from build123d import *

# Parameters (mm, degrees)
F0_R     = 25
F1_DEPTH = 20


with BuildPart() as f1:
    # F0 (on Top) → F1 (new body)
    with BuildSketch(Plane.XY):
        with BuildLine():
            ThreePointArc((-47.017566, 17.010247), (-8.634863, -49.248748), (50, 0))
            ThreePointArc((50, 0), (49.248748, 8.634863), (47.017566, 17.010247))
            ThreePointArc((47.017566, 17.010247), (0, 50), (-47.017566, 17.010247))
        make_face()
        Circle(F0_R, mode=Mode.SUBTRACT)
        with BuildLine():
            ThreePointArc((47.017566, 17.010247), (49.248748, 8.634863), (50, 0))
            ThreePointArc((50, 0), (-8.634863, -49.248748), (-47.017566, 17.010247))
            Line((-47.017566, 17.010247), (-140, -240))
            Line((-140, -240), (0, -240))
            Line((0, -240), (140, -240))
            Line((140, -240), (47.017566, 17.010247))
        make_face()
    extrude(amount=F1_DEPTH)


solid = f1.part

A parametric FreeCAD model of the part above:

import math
import FreeCAD as App
import Part
import Sketcher
from FreeCAD import Vector
Q = App.Units.Quantity

doc = App.newDocument("Part")
body = doc.addObject("PartDesign::Body", "Body")

# Sketch on XY plane
sketch1 = doc.addObject("Sketcher::SketchObject", "Sketch")
body.addObject(sketch1)
sketch1.AttachmentSupport = (doc.XY_Plane, [""])
sketch1.MapMode = "FlatFace"
sketch1.addGeometry(Part.ArcOfCircle(Part.Circle(Vector(0, 0, 0), Vector(0, 0, 1), 50), math.radians(20), math.radians(160)), False)
sketch1.addGeometry(Part.LineSegment(Vector(-47, 17, 0), Vector(-140, -240, 0)), False)
sketch1.addGeometry(Part.LineSegment(Vector(-140, -240, 0), Vector(140, -240, 0)), False)
sketch1.addGeometry(Part.LineSegment(Vector(140, -240, 0), Vector(47, 17, 0)), False)
sketch1.addGeometry(Part.Circle(Vector(0, 0, 0), Vector(0, 0, 1), 25), False)
sketch1.addConstraint(Sketcher.Constraint("Tangent", 0, 2, 1, 1))
sketch1.addConstraint(Sketcher.Constraint("Coincident", 1, 2, 2, 1))
sketch1.addConstraint(Sketcher.Constraint("Coincident", 2, 2, 3, 1))
sketch1.addConstraint(Sketcher.Constraint("Tangent", 3, 2, 0, 1))
sketch1.addConstraint(Sketcher.Constraint("Horizontal", 2))
sketch1.addConstraint(Sketcher.Constraint("Coincident", 0, 3, -1, 1))
sketch1.addConstraint(Sketcher.Constraint("Coincident", 4, 3, -1, 1))
sketch1.addConstraint(Sketcher.Constraint("Horizontal", 0, 2, 3, 2))
sketch1.addConstraint(Sketcher.Constraint("Diameter", 4, Q("50 mm")))
sketch1.addConstraint(Sketcher.Constraint("Radius", 0, Q("50 mm")))
sketch1.addConstraint(Sketcher.Constraint("DistanceX", 2, 1, 2, 2, Q("280 mm")))
sketch1.addConstraint(Sketcher.Constraint("DistanceY", 1, 2, -1, 1, Q("240 mm")))
pad1 = doc.addObject("PartDesign::Pad", "Pad")
body.addObject(pad1)
pad1.Profile = sketch1
pad1.Length = 20

doc.recompute()
